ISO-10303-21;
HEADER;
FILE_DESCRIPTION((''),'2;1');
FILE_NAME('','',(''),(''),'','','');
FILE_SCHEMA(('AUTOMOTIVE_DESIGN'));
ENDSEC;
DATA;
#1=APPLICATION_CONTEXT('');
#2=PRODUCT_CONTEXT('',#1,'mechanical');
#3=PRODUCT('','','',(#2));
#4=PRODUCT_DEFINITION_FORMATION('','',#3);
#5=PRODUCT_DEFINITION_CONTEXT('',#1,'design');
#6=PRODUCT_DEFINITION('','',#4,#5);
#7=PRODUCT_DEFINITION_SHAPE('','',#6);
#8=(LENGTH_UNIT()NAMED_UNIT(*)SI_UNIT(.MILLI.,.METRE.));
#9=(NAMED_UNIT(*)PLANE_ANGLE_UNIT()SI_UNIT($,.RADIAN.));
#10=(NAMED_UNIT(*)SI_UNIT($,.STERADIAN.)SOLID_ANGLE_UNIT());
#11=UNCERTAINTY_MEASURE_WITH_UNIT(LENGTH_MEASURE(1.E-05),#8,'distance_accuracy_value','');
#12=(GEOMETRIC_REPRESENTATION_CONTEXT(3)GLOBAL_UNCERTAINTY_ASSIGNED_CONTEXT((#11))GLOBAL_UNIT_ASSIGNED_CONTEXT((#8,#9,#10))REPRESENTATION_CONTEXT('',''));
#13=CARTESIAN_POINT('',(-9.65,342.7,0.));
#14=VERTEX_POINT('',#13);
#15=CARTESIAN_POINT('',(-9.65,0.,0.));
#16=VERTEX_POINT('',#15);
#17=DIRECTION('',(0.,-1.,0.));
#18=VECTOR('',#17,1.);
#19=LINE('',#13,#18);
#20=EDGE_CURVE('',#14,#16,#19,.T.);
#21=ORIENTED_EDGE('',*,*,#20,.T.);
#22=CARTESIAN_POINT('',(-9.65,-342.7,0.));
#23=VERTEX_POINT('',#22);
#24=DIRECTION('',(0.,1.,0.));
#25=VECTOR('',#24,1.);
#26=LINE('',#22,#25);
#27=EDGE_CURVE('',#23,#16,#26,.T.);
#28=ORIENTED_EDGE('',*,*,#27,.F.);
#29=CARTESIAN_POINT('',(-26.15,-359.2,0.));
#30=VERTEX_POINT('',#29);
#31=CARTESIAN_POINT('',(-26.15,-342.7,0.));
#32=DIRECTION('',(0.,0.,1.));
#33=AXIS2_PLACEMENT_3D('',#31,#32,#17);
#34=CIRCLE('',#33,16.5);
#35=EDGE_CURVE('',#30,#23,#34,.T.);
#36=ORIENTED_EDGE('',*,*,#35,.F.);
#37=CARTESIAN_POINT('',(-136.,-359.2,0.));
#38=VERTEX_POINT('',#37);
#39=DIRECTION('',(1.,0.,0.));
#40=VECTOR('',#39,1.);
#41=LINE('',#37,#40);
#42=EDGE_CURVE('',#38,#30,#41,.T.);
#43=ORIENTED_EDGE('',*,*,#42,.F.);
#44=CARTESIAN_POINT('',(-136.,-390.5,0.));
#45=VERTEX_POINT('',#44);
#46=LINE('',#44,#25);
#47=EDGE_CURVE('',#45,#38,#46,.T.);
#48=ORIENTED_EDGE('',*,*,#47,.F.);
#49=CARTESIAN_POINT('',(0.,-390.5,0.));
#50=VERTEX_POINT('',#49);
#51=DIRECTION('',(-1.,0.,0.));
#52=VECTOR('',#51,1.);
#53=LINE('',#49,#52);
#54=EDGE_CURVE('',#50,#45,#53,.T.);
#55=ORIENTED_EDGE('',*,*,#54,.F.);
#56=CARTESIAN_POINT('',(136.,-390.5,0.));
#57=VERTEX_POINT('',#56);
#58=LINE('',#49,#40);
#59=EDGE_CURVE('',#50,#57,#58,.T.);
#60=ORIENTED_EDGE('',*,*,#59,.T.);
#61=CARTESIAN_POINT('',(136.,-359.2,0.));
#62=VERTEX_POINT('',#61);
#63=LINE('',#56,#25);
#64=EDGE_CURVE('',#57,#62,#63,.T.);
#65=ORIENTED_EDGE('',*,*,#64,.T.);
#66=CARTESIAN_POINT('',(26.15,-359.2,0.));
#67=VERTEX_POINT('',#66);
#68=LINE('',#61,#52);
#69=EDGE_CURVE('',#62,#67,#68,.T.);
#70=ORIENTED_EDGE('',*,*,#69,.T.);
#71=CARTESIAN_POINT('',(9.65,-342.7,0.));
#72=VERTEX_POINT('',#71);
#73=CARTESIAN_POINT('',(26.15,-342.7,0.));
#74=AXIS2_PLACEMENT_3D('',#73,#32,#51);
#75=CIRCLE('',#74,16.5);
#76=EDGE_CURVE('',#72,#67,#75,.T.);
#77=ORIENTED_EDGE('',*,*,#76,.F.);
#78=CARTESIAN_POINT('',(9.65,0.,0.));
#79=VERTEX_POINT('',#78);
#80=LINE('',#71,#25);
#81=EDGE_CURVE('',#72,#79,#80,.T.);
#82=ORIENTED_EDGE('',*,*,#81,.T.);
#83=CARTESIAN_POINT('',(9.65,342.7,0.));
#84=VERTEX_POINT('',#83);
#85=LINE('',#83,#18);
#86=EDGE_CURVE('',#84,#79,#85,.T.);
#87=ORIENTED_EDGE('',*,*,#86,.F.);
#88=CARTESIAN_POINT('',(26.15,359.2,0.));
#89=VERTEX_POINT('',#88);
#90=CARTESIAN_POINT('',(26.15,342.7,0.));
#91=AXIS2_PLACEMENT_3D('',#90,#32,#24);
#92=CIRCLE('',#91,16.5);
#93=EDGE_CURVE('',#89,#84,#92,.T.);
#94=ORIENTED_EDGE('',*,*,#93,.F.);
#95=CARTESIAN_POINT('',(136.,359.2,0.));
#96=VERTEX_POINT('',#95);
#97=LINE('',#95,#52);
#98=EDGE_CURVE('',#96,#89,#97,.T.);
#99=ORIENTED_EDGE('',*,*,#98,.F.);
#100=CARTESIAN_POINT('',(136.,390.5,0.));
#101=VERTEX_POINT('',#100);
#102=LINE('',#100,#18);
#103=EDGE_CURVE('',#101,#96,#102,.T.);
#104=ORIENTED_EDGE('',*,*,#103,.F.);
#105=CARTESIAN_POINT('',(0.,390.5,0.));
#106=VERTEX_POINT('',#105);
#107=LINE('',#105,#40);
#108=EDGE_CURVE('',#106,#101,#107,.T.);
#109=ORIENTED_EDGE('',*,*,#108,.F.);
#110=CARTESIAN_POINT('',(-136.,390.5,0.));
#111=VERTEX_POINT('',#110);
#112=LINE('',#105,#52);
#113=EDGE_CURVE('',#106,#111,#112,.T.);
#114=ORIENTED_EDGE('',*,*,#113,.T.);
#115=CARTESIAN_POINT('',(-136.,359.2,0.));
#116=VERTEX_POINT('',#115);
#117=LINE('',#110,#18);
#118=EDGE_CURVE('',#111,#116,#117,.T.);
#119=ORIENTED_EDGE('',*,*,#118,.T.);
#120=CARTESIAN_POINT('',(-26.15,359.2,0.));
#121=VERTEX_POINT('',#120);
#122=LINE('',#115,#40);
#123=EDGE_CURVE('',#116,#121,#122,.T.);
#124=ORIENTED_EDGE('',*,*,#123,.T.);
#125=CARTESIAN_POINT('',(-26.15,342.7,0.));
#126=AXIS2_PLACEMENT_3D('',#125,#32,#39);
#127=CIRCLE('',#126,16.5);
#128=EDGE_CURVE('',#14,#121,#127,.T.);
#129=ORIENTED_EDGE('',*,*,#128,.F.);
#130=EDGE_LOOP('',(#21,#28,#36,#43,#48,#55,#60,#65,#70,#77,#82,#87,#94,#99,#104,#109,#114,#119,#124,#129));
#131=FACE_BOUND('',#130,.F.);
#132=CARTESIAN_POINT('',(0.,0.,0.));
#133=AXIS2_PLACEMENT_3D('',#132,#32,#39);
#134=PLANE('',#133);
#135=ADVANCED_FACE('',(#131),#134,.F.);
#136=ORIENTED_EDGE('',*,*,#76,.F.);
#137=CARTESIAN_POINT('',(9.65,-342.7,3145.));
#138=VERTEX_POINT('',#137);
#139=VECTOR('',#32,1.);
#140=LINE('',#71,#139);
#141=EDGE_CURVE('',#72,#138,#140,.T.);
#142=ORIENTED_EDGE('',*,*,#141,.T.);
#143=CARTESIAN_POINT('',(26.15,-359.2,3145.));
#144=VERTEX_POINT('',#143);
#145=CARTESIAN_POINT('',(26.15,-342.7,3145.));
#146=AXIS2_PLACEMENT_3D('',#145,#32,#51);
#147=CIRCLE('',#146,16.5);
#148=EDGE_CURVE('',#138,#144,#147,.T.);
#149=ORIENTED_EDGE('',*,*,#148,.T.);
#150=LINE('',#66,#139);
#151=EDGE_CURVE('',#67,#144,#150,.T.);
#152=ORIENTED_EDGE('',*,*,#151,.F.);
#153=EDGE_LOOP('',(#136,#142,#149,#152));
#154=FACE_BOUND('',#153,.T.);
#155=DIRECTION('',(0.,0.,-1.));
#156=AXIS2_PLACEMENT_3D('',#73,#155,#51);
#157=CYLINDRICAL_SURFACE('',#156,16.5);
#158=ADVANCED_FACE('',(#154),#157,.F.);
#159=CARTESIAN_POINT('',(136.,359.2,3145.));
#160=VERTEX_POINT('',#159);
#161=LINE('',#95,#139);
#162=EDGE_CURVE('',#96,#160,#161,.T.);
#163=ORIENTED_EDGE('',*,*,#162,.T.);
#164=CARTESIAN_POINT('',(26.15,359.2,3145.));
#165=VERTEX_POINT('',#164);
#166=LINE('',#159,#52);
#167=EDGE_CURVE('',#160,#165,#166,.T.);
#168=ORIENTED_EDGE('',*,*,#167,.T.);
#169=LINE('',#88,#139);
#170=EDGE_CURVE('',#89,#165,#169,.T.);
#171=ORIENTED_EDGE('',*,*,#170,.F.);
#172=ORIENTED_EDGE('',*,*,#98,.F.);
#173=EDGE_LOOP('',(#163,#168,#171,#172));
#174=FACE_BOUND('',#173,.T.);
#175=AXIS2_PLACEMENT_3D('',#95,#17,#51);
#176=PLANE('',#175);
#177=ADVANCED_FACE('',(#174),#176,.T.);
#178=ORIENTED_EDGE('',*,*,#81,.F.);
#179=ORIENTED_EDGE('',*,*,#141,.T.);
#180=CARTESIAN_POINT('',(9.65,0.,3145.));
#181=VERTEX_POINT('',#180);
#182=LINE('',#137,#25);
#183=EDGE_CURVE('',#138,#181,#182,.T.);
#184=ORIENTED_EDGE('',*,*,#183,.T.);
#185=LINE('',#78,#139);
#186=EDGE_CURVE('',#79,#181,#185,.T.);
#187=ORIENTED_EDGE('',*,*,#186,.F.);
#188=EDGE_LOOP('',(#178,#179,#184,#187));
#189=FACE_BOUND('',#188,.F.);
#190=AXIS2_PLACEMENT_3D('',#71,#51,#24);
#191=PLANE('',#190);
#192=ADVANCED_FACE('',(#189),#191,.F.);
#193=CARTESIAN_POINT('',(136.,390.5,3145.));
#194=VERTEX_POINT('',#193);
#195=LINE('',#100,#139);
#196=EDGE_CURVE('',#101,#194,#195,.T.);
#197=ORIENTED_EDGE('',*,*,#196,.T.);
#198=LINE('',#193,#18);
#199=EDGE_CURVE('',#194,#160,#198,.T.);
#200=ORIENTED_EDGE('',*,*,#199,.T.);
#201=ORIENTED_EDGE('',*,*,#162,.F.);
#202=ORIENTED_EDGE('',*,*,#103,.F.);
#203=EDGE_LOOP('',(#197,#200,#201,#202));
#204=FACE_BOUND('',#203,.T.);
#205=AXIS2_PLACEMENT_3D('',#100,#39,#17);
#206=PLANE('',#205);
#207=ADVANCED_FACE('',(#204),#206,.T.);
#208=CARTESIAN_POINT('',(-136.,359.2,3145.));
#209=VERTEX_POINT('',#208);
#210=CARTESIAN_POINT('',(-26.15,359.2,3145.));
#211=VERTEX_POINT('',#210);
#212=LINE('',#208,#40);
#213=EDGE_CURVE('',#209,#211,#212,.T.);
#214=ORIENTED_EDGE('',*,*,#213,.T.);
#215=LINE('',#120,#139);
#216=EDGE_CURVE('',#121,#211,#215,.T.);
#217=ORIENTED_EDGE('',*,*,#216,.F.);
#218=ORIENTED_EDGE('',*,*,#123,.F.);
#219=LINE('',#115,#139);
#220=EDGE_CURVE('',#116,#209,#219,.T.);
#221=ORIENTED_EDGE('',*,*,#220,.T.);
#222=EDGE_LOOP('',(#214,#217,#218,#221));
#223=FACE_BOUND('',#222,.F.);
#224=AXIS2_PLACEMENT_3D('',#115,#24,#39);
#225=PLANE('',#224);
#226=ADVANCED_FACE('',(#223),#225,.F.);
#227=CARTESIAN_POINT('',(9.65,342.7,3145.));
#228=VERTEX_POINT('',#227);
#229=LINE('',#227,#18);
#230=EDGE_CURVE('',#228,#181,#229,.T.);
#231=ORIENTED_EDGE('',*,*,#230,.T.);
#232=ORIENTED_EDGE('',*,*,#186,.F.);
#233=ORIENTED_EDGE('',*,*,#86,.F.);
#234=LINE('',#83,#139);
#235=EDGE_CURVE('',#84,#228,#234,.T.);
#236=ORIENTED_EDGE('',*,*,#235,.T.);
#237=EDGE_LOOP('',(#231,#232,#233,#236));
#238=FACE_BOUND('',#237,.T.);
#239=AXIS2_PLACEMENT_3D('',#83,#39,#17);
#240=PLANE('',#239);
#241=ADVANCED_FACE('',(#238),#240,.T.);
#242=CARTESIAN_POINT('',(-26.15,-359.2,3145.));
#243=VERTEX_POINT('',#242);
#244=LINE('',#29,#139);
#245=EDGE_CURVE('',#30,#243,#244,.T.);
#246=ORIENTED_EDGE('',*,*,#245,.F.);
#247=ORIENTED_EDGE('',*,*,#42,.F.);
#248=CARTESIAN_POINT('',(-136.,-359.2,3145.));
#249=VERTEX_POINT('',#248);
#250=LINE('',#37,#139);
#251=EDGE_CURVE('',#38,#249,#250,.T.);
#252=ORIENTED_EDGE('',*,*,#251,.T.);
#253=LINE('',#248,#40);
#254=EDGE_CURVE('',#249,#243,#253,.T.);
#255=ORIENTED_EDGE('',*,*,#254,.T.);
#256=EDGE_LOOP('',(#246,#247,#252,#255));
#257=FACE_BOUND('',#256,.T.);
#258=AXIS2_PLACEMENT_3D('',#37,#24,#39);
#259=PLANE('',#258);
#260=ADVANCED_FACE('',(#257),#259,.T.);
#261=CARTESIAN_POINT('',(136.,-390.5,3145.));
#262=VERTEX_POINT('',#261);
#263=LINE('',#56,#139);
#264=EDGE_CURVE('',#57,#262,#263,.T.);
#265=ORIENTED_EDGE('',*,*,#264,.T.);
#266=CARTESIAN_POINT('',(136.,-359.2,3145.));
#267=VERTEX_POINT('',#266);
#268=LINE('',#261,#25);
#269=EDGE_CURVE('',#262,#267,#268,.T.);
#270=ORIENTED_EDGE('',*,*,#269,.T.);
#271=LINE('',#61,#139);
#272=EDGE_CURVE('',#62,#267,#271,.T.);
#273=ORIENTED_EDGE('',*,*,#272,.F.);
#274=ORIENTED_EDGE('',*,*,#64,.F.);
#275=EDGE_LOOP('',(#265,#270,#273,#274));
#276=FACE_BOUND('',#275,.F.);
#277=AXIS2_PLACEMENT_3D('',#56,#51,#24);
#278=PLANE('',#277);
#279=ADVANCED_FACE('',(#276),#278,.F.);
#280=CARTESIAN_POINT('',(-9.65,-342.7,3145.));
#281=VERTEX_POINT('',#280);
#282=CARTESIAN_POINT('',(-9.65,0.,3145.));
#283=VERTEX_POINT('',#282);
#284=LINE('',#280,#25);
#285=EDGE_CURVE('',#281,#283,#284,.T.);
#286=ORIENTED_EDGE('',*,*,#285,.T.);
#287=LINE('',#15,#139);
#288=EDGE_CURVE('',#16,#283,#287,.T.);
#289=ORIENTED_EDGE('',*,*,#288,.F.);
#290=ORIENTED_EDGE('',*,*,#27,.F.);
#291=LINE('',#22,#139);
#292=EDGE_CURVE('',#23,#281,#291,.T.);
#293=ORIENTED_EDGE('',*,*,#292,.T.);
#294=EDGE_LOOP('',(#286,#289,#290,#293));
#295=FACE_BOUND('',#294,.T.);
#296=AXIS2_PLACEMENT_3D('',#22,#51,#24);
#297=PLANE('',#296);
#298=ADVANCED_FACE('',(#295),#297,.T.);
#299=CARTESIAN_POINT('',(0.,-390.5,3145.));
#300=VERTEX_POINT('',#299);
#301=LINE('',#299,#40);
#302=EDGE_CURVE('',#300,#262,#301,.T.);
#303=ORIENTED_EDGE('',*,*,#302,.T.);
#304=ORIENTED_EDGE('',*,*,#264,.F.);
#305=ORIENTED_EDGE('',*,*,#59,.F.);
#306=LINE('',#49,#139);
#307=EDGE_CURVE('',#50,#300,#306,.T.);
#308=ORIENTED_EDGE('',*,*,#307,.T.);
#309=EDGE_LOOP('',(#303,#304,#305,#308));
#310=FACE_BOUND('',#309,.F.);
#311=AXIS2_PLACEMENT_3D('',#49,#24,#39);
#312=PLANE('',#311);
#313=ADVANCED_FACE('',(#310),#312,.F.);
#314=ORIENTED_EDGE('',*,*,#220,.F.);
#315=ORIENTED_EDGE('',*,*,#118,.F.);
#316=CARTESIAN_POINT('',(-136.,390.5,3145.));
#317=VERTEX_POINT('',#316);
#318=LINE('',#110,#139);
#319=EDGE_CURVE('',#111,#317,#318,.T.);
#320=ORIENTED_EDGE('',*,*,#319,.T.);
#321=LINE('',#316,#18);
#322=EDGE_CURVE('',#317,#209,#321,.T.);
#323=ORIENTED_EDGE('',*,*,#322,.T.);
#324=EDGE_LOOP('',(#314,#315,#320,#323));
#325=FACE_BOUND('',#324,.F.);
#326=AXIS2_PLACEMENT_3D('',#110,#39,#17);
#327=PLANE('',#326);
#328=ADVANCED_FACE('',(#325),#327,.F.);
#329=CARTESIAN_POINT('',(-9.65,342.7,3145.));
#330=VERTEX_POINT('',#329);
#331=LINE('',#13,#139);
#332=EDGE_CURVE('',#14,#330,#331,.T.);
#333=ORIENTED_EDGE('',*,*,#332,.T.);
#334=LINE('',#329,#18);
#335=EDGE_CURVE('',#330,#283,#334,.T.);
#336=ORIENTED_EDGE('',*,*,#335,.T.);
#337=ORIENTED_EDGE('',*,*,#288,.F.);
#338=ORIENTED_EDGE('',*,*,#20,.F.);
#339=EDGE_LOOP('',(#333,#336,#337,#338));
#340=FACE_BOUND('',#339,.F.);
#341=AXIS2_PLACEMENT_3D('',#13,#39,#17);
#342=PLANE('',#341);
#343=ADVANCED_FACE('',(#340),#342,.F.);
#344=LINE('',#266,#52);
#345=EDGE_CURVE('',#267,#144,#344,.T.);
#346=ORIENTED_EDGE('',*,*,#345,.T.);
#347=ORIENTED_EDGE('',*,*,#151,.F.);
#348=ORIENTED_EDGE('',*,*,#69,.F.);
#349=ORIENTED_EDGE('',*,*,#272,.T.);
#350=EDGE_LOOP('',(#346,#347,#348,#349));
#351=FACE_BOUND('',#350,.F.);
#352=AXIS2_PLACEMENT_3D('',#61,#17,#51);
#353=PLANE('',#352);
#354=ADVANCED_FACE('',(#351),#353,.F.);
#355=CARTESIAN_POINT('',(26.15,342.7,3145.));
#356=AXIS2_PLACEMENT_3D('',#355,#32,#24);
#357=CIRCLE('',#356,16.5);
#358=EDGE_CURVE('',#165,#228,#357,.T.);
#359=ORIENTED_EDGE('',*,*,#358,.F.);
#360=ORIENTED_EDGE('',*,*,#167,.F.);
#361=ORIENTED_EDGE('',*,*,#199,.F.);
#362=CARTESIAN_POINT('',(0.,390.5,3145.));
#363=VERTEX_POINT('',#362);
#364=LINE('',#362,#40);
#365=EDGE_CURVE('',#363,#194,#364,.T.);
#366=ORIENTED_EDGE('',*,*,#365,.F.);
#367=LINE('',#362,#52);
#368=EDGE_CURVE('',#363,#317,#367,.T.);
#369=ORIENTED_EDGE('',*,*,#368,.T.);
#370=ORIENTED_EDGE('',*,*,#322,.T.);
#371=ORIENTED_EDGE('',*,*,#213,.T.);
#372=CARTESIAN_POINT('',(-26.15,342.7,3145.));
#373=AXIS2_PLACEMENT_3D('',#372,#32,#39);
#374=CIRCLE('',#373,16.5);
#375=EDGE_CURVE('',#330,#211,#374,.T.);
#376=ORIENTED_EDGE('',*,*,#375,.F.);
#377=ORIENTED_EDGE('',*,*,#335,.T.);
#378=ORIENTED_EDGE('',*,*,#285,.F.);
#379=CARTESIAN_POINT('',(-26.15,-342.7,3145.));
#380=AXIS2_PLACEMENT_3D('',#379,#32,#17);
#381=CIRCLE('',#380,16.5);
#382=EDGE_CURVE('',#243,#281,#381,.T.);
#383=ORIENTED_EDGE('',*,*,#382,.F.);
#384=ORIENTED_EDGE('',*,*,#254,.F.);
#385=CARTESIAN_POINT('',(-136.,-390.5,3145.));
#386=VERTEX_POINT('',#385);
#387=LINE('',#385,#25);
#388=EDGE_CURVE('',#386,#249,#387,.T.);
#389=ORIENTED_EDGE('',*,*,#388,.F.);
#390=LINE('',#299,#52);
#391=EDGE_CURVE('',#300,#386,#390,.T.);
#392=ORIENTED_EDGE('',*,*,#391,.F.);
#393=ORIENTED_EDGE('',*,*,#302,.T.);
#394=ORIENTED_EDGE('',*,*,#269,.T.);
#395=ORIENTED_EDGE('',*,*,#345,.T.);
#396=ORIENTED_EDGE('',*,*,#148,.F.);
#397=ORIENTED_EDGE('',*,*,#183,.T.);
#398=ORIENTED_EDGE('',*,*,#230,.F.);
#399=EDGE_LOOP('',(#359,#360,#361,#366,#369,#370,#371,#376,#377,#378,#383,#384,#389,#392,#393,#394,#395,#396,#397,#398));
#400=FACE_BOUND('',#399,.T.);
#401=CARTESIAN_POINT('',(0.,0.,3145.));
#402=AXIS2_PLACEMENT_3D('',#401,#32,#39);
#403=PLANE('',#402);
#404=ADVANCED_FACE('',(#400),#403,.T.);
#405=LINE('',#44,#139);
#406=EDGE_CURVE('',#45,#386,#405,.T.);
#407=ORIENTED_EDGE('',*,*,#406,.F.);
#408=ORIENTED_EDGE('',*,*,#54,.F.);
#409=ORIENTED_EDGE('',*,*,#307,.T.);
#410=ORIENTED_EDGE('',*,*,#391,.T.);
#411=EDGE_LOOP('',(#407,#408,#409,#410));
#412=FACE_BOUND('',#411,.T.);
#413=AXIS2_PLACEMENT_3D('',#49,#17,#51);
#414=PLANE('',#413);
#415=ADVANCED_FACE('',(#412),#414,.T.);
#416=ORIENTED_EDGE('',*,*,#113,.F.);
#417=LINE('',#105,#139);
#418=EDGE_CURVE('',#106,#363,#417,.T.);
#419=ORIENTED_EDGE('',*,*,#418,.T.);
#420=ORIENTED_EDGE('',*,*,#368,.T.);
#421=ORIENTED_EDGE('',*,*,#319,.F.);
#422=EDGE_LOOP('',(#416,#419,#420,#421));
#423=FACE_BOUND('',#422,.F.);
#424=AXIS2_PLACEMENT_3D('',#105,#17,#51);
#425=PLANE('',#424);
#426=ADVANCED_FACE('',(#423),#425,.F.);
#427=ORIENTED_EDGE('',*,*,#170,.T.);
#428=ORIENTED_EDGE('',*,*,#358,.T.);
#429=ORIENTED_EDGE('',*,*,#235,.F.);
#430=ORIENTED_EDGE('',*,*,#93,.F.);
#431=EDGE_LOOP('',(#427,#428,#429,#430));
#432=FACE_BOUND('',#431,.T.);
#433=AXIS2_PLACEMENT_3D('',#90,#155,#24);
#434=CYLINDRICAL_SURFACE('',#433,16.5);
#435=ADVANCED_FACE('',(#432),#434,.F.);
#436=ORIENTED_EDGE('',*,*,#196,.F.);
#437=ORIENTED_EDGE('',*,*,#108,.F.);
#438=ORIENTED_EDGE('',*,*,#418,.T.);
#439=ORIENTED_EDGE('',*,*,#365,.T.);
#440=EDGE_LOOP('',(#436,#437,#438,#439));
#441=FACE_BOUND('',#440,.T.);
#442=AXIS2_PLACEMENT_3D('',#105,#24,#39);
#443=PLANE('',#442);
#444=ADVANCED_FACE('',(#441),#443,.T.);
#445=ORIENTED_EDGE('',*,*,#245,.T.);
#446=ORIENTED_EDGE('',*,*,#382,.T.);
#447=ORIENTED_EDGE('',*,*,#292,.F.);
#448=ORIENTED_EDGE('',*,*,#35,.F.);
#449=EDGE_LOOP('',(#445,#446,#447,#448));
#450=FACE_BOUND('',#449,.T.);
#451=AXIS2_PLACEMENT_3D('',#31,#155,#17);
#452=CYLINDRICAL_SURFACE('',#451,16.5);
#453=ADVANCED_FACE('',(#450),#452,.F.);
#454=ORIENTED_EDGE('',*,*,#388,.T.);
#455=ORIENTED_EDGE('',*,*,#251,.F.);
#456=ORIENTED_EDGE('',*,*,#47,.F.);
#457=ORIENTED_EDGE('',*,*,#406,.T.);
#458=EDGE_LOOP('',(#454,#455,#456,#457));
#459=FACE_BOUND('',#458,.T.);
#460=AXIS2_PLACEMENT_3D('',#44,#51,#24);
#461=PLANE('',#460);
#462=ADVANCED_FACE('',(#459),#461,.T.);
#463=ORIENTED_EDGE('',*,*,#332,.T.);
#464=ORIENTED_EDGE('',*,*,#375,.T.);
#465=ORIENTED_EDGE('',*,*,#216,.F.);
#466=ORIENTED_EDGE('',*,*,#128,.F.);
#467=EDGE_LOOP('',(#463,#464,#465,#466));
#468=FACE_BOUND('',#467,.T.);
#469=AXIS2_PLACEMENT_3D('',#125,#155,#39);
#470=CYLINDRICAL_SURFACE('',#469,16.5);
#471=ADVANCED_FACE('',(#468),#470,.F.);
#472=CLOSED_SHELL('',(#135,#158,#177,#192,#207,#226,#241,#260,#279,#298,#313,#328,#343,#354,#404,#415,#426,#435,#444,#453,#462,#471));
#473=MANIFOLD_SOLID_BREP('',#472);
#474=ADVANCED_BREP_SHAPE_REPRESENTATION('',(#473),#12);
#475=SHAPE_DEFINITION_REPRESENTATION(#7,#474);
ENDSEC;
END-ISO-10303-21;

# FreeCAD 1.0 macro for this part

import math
import FreeCAD as App
import Part
import Sketcher
Q = App.Units.Quantity

doc = App.newDocument("Part")
params = doc.addObject("Spreadsheet::Sheet", "Params")
for row, (alias, value) in enumerate([
    ("sketch1_radius", "16.5 mm"),
    ("sketch1_height", "31.3 mm"),
    ("pad1_length", "3145 mm"),
], start=1):
    params.set(f"A{row}", alias)
    params.set(f"B{row}", "=" + value)
    params.setAlias(f"B{row}", alias)

body = doc.addObject("PartDesign::Body", "Body")

# Sketch on XY plane
sketch1 = body.newObject("Sketcher::SketchObject", "Sketch")
sketch1.AttachmentSupport = (doc.getObject("XY_Plane"), [""])
sketch1.MapMode = "FlatFace"
sketch1.addGeometry([
    Part.LineSegment(App.Vector(-136, -359.2, 0), App.Vector(-136, -390.5, 0)),  # 0
    Part.LineSegment(App.Vector(-136, -390.5, 0), App.Vector(136, -390.5, 0)),  # 1
    Part.LineSegment(App.Vector(136, -390.5, 0), App.Vector(136, -359.2, 0)),  # 2
    Part.LineSegment(App.Vector(136, -359.2, 0), App.Vector(26.15, -359.2, 0)),  # 3
    Part.ArcOfCircle(Part.Circle(App.Vector(26.15, -342.7, 0), App.Vector(0, 0, 1), 16.5), math.radians(180), math.radians(270)),  # 4
    Part.LineSegment(App.Vector(9.65, -342.7, 0), App.Vector(9.65, 342.7, 0)),  # 5
    Part.ArcOfCircle(Part.Circle(App.Vector(26.15, 342.7, 0), App.Vector(0, 0, 1), 16.5), math.radians(90), math.radians(180)),  # 6
    Part.LineSegment(App.Vector(26.15, 359.2, 0), App.Vector(136, 359.2, 0)),  # 7
    Part.LineSegment(App.Vector(136, 359.2, 0), App.Vector(136, 390.5, 0)),  # 8
    Part.LineSegment(App.Vector(136, 390.5, 0), App.Vector(-136, 390.5, 0)),  # 9
    Part.LineSegment(App.Vector(-136, 390.5, 0), App.Vector(-136, 359.2, 0)),  # 10
    Part.LineSegment(App.Vector(-136, 359.2, 0), App.Vector(-26.15, 359.2, 0)),  # 11
    Part.ArcOfCircle(Part.Circle(App.Vector(-26.15, 342.7, 0), App.Vector(0, 0, 1), 16.5), math.radians(0), math.radians(90)),  # 12
    Part.LineSegment(App.Vector(-9.65, 342.7, 0), App.Vector(-9.65, -342.7, 0)),  # 13
    Part.ArcOfCircle(Part.Circle(App.Vector(-26.15, -342.7, 0), App.Vector(0, 0, 1), 16.5), math.radians(-90), math.radians(0)),  # 14
    Part.LineSegment(App.Vector(-26.15, -359.2, 0), App.Vector(-136, -359.2, 0)),  # 15
], False)
sketch1.addConstraint([
    Sketcher.Constraint("Coincident", 0, 2, 1, 1),
    Sketcher.Constraint("Coincident", 1, 2, 2, 1),
    Sketcher.Constraint("Coincident", 2, 2, 3, 1),
    Sketcher.Constraint("Tangent", 3, 2, 4, 2),
    Sketcher.Constraint("Tangent", 4, 1, 5, 1),
    Sketcher.Constraint("Tangent", 5, 2, 6, 2),
    Sketcher.Constraint("Tangent", 6, 1, 7, 1),
    Sketcher.Constraint("Coincident", 7, 2, 8, 1),
    Sketcher.Constraint("Coincident", 8, 2, 9, 1),
    Sketcher.Constraint("Coincident", 9, 2, 10, 1),
    Sketcher.Constraint("Coincident", 10, 2, 11, 1),
    Sketcher.Constraint("Tangent", 11, 2, 12, 2),
    Sketcher.Constraint("Tangent", 12, 1, 13, 1),
    Sketcher.Constraint("Tangent", 13, 2, 14, 2),
    Sketcher.Constraint("Tangent", 14, 1, 15, 1),
    Sketcher.Constraint("Coincident", 15, 2, 0, 1),
    Sketcher.Constraint("Vertical", 0),
    Sketcher.Constraint("Horizontal", 1),
    Sketcher.Constraint("Vertical", 2),
    Sketcher.Constraint("Horizontal", 3),
    Sketcher.Constraint("Vertical", 5),
    Sketcher.Constraint("Horizontal", 7),
    Sketcher.Constraint("Vertical", 8),
    Sketcher.Constraint("Horizontal", 9),
    Sketcher.Constraint("Vertical", 10),
    Sketcher.Constraint("Horizontal", 11),
    Sketcher.Constraint("Vertical", 13),
    Sketcher.Constraint("Horizontal", 15),
    Sketcher.Constraint("Equal", 4, 6),
    Sketcher.Constraint("Equal", 6, 12),
    Sketcher.Constraint("Equal", 12, 14),
    Sketcher.Constraint("Symmetric", 4, 3, 12, 3, -1, 1),
    Sketcher.Constraint("Symmetric", 0, 2, 8, 2, -1, 1),
    Sketcher.Constraint("Symmetric", 7, 2, 10, 2, -2),
    Sketcher.Constraint("Symmetric", 2, 2, 15, 2, -2),
    Sketcher.Constraint("Radius", 4, Q("16.5 mm")),
    Sketcher.Constraint("DistanceY", 0, 2, 0, 1, Q("31.3 mm")),
    Sketcher.Constraint("DistanceX", 0, 2, -1, 1, Q("136 mm")),
    Sketcher.Constraint("DistanceY", 0, 2, -1, 1, Q("390.5 mm")),
    Sketcher.Constraint("DistanceX", -1, 1, 4, 1, Q("9.65 mm")),
])
sketch1.setExpression("Constraints[35]", "Params.sketch1_radius")
sketch1.setExpression("Constraints[36]", "Params.sketch1_height")
pad1 = body.newObject("PartDesign::Pad", "Pad")
pad1.Profile = sketch1
pad1.setExpression("Length", "Params.pad1_length")

doc.recompute()
